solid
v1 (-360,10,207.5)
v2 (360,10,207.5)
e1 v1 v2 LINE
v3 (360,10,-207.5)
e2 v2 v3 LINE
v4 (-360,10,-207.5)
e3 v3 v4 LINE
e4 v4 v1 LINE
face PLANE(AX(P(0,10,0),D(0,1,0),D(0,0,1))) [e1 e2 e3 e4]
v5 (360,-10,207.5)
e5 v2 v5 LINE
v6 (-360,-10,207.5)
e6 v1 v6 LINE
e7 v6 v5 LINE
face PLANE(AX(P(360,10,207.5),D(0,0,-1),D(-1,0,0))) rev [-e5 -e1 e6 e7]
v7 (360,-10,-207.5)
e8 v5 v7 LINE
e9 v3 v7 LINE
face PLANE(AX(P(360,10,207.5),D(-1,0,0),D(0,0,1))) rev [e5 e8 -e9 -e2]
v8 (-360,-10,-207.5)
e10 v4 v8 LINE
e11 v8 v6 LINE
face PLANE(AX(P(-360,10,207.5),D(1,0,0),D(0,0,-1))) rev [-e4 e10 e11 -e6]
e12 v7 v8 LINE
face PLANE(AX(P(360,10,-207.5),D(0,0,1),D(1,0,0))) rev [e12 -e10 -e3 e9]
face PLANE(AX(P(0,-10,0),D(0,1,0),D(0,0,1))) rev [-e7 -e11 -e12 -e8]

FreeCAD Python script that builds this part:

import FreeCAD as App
import Part
import Sketcher
from FreeCAD import Vector

doc = App.newDocument("Part")
body = doc.addObject("PartDesign::Body", "Body")

sketch1 = body.newObject("Sketcher::SketchObject", "Sketch")
sketch1.AttachmentSupport = (doc.getObject("XZ_Plane"), [""])
sketch1.MapMode = "FlatFace"
sketch1.addGeometry(Part.LineSegment(Vector(-360, -208, 0), Vector(-360, 208, 0)), False)
sketch1.addGeometry(Part.LineSegment(Vector(-360, 208, 0), Vector(360, 208, 0)), False)
sketch1.addGeometry(Part.LineSegment(Vector(360, 208, 0), Vector(360, -208, 0)), False)
sketch1.addGeometry(Part.LineSegment(Vector(360, -208, 0), Vector(-360, -208, 0)), False)
sketch1.addConstraint(Sketcher.Constraint("Coincident", 0, 2, 1, 1))
sketch1.addConstraint(Sketcher.Constraint("Coincident", 1, 2, 2, 1))
sketch1.addConstraint(Sketcher.Constraint("Coincident", 2, 2, 3, 1))
sketch1.addConstraint(Sketcher.Constraint("Coincident", 3, 2, 0, 1))
sketch1.addConstraint(Sketcher.Constraint("Vertical", 0))
sketch1.addConstraint(Sketcher.Constraint("Horizontal", 1))
sketch1.addConstraint(Sketcher.Constraint("Vertical", 2))
sketch1.addConstraint(Sketcher.Constraint("Horizontal", 3))
sketch1.addConstraint(Sketcher.Constraint("Symmetric", 0, 2, 2, 2, -1, 1))
sketch1.addConstraint(Sketcher.Constraint("DistanceX", 1, 1, 1, 2, 720.0))
sketch1.addConstraint(Sketcher.Constraint("DistanceY", 0, 1, 0, 2, 415.0))
pad1 = body.newObject("PartDesign::Pad", "Pad")
pad1.Profile = sketch1
pad1.Length = 20
pad1.Midplane = True

doc.recompute()
